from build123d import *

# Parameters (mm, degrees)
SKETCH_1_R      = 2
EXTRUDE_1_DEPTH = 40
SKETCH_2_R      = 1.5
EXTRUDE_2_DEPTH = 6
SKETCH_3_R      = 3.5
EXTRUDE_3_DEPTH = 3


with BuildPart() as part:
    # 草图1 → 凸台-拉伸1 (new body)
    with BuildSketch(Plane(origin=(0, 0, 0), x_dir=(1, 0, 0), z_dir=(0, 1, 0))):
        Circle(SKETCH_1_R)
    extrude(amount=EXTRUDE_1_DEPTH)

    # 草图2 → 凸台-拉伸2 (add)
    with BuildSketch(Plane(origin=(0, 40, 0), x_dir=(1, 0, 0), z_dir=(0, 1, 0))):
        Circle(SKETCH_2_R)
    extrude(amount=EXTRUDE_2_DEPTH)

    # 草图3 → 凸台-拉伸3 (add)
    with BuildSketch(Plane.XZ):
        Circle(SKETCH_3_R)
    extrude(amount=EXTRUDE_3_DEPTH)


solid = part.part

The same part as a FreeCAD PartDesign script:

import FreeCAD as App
import Part
import Sketcher
Q = App.Units.Quantity

doc = App.newDocument("Part")
body = doc.addObject("PartDesign::Body", "Body")

# Sketch on XZ plane
sketch1 = body.newObject("Sketcher::SketchObject", "Sketch")
sketch1.AttachmentSupport = (doc.getObject("XZ_Plane"), [""])
sketch1.MapMode = "FlatFace"
sketch1.addGeometry(Part.Circle(App.Vector(0, 0, 0), App.Vector(0, 0, 1), 2), False)
sketch1.addConstraint([
    Sketcher.Constraint("Coincident", 0, 3, -1, 1),
    Sketcher.Constraint("Diameter", 0, Q("4 mm")),
])
pad1 = body.newObject("PartDesign::Pad", "Pad")
pad1.Profile = sketch1
pad1.Length = 40
pad1.Reversed = True

# Sketch on XZ plane
sketch2 = body.newObject("Sketcher::SketchObject", "Sketch001")
sketch2.AttachmentSupport = (doc.getObject("XZ_Plane"), [""])
sketch2.MapMode = "FlatFace"
sketch2.AttachmentOffset = App.Placement(App.Vector(0, 0, -40), App.Rotation())
sketch2.addGeometry(Part.Circle(App.Vector(0, 0, 0), App.Vector(0, 0, 1), 1.5), False)
sketch2.addConstraint([
    Sketcher.Constraint("Coincident", 0, 3, -1, 1),
    Sketcher.Constraint("Diameter", 0, Q("3 mm")),
])
pad2 = body.newObject("PartDesign::Pad", "Pad001")
pad2.Profile = sketch2
pad2.Length = 6
pad2.Reversed = True

# Sketch on XZ plane
sketch3 = body.newObject("Sketcher::SketchObject", "Sketch002")
sketch3.AttachmentSupport = (doc.getObject("XZ_Plane"), [""])
sketch3.MapMode = "FlatFace"
sketch3.addGeometry(Part.Circle(App.Vector(0, 0, 0), App.Vector(0, 0, 1), 3.5), False)
sketch3.addConstraint([
    Sketcher.Constraint("Coincident", 0, 3, -1, 1),
    Sketcher.Constraint("Diameter", 0, Q("7 mm")),
])
pad3 = body.newObject("PartDesign::Pad", "Pad002")
pad3.Profile = sketch3
pad3.Length = 3

doc.recompute()
